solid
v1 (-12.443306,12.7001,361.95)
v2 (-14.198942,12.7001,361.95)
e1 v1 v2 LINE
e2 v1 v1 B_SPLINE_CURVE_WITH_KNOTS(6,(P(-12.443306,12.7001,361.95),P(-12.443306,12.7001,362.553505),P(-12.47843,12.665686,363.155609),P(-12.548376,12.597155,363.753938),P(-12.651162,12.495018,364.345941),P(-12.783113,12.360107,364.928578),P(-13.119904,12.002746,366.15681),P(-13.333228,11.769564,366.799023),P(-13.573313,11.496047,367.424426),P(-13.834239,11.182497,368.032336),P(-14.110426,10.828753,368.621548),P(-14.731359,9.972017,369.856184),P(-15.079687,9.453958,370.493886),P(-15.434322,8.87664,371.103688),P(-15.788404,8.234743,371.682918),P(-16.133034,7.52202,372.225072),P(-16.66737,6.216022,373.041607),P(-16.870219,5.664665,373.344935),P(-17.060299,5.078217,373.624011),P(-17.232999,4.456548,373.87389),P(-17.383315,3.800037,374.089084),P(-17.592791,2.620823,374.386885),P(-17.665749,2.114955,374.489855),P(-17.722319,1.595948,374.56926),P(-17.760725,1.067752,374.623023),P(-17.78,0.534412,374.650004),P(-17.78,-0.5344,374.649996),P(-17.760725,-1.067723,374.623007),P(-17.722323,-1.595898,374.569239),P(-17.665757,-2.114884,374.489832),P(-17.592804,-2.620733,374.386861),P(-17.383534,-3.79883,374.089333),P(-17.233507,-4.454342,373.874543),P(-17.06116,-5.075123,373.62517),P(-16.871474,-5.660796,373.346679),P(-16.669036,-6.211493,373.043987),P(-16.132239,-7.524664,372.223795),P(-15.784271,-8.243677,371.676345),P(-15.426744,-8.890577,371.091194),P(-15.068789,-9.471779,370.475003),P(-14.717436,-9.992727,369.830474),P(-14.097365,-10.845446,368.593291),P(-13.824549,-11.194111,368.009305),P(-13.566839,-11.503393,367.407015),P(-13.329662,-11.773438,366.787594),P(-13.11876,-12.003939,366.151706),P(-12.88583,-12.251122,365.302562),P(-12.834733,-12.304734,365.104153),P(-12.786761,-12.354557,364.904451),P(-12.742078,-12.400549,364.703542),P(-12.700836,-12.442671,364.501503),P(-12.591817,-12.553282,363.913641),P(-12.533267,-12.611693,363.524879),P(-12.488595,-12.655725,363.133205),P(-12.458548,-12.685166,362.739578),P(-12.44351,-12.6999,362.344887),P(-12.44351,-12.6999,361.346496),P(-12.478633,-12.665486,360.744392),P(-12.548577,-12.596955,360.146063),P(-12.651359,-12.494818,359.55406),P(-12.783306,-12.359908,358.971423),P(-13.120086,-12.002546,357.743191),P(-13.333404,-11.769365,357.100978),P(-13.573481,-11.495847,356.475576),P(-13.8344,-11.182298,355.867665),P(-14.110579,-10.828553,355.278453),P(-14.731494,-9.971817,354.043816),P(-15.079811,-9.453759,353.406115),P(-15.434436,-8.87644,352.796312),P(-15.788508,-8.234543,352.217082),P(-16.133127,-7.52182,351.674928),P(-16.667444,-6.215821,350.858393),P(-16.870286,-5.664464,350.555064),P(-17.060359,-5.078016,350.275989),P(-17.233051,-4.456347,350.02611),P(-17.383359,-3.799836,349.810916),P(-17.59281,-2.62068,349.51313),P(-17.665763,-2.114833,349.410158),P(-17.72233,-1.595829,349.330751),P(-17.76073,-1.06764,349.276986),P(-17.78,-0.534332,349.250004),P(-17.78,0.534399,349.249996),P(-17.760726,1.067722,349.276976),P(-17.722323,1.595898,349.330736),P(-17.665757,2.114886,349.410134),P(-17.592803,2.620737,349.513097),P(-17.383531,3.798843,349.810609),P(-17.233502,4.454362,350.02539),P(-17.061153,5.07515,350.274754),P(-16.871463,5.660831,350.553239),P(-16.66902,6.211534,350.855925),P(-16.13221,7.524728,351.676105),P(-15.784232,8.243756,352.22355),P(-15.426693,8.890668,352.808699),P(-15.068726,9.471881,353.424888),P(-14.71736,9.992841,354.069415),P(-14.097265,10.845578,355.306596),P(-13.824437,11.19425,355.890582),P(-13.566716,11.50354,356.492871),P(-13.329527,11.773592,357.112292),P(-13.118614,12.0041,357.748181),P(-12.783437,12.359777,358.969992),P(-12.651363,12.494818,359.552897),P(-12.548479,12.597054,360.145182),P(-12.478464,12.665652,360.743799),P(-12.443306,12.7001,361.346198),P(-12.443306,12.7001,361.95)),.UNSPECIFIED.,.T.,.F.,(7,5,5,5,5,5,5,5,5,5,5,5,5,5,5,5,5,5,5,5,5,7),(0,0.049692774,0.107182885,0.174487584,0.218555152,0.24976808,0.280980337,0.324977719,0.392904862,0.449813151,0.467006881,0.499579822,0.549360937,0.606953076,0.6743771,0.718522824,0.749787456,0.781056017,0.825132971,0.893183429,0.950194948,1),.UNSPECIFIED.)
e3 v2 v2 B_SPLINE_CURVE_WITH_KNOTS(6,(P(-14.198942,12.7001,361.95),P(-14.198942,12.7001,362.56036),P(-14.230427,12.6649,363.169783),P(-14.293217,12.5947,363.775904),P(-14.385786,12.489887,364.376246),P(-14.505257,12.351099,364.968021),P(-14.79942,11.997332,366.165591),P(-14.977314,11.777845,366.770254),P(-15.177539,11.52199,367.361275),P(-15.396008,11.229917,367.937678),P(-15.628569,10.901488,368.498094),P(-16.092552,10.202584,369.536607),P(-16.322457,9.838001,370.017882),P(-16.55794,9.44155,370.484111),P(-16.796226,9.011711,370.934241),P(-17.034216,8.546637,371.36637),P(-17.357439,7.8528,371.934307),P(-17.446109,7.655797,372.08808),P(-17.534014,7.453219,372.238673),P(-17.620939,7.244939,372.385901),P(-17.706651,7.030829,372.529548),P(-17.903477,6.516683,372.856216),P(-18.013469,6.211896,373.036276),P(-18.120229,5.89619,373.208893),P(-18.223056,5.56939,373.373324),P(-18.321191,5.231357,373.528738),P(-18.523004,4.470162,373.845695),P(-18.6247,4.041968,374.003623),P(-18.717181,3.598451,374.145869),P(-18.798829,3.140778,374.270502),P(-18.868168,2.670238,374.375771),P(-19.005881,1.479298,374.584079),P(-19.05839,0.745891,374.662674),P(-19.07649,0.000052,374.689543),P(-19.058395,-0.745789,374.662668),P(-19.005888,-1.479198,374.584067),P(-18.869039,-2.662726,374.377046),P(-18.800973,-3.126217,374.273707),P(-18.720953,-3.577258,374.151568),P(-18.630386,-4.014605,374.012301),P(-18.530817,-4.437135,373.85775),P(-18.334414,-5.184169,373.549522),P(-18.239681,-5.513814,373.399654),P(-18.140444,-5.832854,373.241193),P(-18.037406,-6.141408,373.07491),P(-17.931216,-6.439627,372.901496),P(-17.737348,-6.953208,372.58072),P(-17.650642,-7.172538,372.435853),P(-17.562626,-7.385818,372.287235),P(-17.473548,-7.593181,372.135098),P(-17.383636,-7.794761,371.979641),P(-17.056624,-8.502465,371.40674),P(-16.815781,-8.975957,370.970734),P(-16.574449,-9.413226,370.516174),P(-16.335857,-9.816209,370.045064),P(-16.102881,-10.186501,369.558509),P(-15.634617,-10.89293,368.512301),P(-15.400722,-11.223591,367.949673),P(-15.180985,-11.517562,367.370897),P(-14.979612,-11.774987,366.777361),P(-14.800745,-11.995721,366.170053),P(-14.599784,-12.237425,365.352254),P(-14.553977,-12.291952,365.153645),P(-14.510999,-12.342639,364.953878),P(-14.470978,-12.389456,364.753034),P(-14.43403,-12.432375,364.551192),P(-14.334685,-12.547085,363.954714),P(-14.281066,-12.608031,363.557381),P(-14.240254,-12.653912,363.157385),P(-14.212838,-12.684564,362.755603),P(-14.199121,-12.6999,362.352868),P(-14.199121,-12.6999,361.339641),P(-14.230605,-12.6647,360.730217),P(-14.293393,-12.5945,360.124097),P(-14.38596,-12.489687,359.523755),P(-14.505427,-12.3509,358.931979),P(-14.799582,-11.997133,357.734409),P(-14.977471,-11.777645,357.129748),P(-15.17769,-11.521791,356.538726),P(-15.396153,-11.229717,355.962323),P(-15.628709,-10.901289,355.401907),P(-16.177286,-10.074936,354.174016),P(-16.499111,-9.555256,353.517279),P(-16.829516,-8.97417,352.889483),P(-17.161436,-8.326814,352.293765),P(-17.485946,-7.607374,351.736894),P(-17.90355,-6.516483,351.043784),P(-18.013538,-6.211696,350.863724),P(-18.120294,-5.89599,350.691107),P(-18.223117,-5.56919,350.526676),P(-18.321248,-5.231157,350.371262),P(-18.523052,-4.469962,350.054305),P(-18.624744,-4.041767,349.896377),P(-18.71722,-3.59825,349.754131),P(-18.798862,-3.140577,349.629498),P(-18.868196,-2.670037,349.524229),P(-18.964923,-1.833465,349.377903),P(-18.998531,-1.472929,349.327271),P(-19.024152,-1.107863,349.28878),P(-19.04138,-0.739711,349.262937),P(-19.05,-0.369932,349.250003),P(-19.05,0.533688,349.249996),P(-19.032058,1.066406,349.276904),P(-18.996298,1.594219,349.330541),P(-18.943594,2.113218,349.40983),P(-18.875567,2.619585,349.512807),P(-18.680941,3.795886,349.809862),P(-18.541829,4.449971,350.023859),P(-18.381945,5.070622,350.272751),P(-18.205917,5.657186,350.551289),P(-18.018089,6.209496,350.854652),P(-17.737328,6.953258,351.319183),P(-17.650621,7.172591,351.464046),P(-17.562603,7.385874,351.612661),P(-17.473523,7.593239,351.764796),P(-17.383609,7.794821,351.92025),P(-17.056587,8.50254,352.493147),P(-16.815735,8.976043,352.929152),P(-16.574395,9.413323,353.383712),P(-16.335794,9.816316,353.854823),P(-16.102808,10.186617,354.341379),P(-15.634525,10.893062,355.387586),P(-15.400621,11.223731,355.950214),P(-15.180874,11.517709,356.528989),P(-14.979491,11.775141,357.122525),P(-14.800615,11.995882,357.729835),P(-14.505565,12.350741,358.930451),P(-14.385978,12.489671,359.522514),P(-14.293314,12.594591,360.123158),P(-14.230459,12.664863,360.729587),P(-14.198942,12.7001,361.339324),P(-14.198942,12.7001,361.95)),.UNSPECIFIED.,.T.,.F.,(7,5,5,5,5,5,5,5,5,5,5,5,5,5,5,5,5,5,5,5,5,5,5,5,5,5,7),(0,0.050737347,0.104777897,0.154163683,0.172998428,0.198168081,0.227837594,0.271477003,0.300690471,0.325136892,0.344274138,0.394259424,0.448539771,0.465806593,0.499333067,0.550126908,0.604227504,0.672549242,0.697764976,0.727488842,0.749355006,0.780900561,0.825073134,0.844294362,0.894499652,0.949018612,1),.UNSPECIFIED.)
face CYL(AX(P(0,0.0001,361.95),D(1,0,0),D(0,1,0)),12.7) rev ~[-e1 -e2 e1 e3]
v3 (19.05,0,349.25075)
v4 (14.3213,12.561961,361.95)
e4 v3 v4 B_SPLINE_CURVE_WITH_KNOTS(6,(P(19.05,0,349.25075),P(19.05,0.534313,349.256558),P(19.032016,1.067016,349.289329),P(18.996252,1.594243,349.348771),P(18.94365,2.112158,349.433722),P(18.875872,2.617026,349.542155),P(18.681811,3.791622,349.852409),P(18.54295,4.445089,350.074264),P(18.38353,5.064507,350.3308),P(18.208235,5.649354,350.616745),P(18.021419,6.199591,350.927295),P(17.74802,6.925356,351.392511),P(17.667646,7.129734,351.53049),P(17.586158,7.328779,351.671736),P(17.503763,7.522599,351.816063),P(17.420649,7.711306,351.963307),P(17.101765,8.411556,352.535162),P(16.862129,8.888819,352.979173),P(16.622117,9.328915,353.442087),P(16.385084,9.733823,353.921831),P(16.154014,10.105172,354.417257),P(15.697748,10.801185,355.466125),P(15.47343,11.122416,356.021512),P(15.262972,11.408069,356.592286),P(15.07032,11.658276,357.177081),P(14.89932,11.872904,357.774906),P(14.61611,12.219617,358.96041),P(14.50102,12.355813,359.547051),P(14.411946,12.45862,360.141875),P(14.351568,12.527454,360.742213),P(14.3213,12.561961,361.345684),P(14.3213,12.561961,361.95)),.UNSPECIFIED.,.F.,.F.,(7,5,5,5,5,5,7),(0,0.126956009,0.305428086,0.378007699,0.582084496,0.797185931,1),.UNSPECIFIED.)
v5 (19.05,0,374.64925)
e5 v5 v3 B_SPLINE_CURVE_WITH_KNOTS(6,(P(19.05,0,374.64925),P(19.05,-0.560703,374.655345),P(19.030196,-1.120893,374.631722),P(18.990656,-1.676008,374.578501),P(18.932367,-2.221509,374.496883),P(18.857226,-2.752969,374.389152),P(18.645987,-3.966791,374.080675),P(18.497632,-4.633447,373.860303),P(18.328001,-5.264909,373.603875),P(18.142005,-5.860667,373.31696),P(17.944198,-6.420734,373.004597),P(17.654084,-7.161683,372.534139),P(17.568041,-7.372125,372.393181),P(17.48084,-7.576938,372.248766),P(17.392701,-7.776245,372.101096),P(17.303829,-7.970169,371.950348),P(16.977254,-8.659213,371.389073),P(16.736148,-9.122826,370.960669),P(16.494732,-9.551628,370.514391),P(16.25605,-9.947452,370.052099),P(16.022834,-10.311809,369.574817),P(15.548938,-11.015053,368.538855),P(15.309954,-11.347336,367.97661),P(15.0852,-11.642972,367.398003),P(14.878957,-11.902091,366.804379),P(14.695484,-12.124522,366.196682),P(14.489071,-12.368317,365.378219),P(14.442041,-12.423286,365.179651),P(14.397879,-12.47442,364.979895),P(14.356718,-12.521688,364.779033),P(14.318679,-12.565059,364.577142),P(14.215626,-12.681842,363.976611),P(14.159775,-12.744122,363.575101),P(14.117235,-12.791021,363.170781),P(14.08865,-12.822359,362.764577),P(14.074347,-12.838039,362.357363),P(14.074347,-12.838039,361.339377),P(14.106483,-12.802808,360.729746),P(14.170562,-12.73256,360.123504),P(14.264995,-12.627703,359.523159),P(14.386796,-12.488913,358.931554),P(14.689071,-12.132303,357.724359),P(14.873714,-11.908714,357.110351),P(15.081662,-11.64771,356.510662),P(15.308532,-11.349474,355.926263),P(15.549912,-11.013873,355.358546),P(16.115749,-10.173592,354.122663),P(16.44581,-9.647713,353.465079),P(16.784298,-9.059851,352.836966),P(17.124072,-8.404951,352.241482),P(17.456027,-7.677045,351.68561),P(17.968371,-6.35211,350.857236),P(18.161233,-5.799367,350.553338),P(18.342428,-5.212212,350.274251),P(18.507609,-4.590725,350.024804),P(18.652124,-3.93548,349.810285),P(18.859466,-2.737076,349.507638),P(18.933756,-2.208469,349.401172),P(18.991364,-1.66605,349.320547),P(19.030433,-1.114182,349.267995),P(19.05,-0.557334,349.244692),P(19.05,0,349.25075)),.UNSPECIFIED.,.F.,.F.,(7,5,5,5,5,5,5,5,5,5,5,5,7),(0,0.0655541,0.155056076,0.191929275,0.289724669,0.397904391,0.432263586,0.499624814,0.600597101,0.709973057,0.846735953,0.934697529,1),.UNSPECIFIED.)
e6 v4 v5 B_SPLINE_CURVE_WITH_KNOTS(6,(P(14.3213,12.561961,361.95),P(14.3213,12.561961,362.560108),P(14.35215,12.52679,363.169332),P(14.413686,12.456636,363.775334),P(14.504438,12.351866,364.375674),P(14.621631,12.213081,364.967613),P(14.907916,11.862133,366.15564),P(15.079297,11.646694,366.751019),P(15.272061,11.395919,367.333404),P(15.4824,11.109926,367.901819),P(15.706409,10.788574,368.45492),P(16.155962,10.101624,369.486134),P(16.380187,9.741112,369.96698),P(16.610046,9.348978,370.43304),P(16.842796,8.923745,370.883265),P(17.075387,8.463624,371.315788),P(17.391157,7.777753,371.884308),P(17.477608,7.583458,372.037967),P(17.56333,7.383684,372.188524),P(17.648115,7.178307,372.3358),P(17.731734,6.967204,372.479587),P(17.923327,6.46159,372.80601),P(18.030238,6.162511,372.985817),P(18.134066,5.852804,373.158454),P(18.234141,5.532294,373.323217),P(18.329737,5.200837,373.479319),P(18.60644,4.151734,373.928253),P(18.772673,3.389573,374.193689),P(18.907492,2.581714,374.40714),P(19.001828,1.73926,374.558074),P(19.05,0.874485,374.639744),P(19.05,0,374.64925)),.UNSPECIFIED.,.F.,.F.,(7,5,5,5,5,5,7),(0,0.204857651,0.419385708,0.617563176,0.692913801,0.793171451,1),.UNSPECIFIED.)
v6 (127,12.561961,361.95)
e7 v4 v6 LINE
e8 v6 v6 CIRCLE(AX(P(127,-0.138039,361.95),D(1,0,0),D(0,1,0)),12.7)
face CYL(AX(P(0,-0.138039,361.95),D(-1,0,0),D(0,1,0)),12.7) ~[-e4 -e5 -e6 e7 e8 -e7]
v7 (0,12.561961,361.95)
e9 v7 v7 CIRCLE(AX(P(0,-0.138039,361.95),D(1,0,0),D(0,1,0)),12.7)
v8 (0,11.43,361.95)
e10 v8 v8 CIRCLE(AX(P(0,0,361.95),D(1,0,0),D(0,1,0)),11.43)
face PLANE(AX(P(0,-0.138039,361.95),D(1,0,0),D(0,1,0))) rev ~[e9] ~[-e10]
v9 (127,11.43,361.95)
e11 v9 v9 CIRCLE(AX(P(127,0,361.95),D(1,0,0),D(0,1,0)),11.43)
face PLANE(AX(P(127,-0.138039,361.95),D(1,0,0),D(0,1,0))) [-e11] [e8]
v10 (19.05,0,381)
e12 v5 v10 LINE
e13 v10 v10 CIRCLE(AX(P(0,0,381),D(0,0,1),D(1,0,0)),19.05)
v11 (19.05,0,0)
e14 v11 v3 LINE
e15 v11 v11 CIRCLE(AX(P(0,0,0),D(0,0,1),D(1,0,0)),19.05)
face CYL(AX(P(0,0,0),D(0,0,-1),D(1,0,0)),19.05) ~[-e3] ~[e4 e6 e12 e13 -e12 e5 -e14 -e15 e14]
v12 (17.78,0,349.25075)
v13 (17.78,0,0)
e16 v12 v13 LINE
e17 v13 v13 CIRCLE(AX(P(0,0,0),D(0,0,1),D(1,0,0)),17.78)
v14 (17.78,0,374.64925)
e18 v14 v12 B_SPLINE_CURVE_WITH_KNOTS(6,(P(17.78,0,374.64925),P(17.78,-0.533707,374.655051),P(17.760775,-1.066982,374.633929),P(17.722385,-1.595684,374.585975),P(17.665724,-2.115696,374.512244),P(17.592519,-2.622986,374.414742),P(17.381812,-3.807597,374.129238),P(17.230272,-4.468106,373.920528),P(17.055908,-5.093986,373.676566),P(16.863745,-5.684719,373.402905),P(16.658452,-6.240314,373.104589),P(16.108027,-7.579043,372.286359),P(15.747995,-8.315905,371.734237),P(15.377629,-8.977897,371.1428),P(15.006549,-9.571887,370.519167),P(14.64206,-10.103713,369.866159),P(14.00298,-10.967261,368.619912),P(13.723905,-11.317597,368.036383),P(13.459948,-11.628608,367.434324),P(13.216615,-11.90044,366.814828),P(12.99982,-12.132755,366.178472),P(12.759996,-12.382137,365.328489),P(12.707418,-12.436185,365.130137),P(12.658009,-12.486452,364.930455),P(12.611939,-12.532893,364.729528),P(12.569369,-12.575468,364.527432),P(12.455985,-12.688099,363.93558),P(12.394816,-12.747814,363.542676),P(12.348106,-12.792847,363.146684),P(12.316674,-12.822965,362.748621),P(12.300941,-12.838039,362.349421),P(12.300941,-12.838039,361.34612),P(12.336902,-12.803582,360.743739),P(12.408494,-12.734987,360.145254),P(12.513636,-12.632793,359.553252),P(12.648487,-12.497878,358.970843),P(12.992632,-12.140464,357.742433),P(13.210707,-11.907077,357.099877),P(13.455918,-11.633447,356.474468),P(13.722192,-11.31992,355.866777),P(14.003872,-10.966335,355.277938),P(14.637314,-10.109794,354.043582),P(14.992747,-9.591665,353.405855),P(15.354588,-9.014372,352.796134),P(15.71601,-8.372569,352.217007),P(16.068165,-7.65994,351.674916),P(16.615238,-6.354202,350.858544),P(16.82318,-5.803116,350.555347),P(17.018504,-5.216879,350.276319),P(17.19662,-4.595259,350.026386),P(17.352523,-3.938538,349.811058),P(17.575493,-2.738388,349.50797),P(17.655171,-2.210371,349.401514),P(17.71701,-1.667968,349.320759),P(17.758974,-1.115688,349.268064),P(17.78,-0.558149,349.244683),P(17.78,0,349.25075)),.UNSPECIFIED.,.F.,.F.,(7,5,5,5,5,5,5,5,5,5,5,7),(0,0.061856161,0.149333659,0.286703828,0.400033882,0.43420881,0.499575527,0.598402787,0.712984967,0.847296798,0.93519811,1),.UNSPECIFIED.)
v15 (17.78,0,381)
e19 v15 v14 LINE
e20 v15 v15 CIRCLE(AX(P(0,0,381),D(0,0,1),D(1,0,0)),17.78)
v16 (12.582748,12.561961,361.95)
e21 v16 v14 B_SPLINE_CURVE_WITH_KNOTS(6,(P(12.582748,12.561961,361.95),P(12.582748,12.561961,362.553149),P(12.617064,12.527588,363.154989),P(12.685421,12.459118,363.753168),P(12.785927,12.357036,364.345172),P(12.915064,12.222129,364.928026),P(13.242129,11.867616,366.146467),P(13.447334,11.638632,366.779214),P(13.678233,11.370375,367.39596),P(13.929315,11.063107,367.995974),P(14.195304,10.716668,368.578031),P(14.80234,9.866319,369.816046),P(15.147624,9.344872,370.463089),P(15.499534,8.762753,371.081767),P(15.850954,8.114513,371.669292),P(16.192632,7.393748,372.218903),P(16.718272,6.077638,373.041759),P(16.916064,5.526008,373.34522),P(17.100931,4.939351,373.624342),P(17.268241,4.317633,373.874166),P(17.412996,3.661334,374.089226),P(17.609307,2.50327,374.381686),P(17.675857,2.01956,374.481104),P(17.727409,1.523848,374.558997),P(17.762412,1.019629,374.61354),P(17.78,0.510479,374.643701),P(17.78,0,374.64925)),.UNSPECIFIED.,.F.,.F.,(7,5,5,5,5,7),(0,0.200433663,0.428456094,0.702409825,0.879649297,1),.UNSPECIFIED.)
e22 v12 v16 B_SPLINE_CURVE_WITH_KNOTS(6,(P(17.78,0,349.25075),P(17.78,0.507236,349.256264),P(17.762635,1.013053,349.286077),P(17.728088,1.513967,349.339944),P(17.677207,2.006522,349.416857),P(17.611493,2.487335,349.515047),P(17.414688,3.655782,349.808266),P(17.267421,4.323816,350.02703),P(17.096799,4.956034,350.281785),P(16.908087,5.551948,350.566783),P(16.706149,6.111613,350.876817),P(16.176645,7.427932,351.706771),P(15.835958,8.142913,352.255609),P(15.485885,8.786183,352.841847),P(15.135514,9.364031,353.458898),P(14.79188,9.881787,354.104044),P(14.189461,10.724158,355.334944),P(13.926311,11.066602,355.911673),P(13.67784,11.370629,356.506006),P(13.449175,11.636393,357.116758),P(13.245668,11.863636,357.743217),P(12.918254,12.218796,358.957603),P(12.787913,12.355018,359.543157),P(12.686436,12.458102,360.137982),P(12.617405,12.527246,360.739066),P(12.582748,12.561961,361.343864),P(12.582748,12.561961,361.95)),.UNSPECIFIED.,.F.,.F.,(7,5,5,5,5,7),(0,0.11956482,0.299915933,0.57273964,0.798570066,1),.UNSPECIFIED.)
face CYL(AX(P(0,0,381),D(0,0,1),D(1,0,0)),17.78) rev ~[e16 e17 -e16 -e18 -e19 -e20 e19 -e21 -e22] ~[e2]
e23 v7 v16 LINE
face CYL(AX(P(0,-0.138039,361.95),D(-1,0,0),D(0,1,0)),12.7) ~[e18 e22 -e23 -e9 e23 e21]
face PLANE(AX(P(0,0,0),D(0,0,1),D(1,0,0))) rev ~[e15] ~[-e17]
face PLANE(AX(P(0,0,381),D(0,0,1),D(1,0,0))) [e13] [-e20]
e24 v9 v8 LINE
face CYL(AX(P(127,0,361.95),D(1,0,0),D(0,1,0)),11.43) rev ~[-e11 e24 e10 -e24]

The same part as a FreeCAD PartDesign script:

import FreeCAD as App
import Part
import Sketcher

V = App.Vector
Q = App.Units.Quantity

doc = App.newDocument("Part")
body = doc.addObject("PartDesign::Body", "Body")

sketch1 = doc.addObject("Sketcher::SketchObject", "Sketch")
body.addObject(sketch1)
sketch1.AttachmentSupport = (doc.XY_Plane, [""])
sketch1.MapMode = "FlatFace"
sketch1.addGeometry(Part.Circle(V(0, 0, 0), V(0, 0, 1), 19), False)
sketch1.addConstraint([
    Sketcher.Constraint("Coincident", 0, 3, -1, 1),
    Sketcher.Constraint("Diameter", 0, Q("1.5 in")),
])
pad1 = doc.addObject("PartDesign::Pad", "Pad")
body.addObject(pad1)
pad1.Profile = sketch1
pad1.Length = Q("15 in")

sketch2 = doc.addObject("Sketcher::SketchObject", "Sketch001")
body.addObject(sketch2)
sketch2.AttachmentSupport = (doc.XY_Plane, [""])
sketch2.MapMode = "FlatFace"
sketch2.AttachmentOffset = App.Placement(V(0, 0, 15 * 25.4), App.Rotation())
sketch2.addGeometry(Part.Circle(V(0, 0, 0), V(0, 0, 1), 18), False)
sketch2.addConstraint([
    Sketcher.Constraint("Coincident", 0, 3, -1, 1),
    Sketcher.Constraint("Diameter", 0, Q("1.4 in")),
])
pocket1 = doc.addObject("PartDesign::Pocket", "Pocket")
body.addObject(pocket1)
pocket1.Profile = sketch2
pocket1.Length = Q("15 in")

sketch3 = doc.addObject("Sketcher::SketchObject", "Sketch002")
body.addObject(sketch3)
sketch3.AttachmentSupport = (doc.YZ_Plane, [""])
sketch3.MapMode = "FlatFace"
sketch3.addGeometry(Part.Circle(V(0, 362, 0), V(0, 0, 1), 13), False)
sketch3.addConstraint([
    Sketcher.Constraint("Diameter", 0, Q("1 in")),
    Sketcher.Constraint("DistanceY", -1, 1, 0, 3, Q("14.25 in")),
    Sketcher.Constraint("DistanceX", 0, 3, -1, 1, 0.138039),
])
pad2 = doc.addObject("PartDesign::Pad", "Pad001")
body.addObject(pad2)
pad2.Profile = sketch3
pad2.Length = Q("5 in")

sketch4 = doc.addObject("Sketcher::SketchObject", "Sketch003")
body.addObject(sketch4)
sketch4.AttachmentSupport = (doc.YZ_Plane, [""])
sketch4.MapMode = "FlatFace"
sketch4.AttachmentOffset = App.Placement(V(0, 0, 5 * 25.4), App.Rotation())
sketch4.addGeometry(Part.Circle(V(0, 362, 0), V(0, 0, 1), 11), False)
sketch4.addConstraint([
    Sketcher.Constraint("PointOnObject", 0, 3, -2),
    Sketcher.Constraint("Diameter", 0, Q("0.9 in")),
    Sketcher.Constraint("DistanceY", -1, 1, 0, 3, Q("14.25 in")),
])
pocket2 = doc.addObject("PartDesign::Pocket", "Pocket001")
body.addObject(pocket2)
pocket2.Profile = sketch4
pocket2.Length = Q("5 in")

sketch5 = doc.addObject("Sketcher::SketchObject", "Sketch004")
body.addObject(sketch5)
sketch5.AttachmentSupport = (doc.YZ_Plane, [""])
sketch5.MapMode = "FlatFace"
sketch5.addGeometry(Part.Circle(V(0, 362, 0), V(0, 0, 1), 13), False)
sketch5.addConstraint([
    Sketcher.Constraint("Diameter", 0, Q("1 in")),
    Sketcher.Constraint("DistanceY", -1, 1, 0, 3, Q("14.25 in")),
    Sketcher.Constraint("DistanceX", -1, 1, 0, 3, 0.0001),
])
pocket3 = doc.addObject("PartDesign::Pocket", "Pocket002")
body.addObject(pocket3)
pocket3.Profile = sketch5
pocket3.Length = Q("1 in")

doc.recompute()
